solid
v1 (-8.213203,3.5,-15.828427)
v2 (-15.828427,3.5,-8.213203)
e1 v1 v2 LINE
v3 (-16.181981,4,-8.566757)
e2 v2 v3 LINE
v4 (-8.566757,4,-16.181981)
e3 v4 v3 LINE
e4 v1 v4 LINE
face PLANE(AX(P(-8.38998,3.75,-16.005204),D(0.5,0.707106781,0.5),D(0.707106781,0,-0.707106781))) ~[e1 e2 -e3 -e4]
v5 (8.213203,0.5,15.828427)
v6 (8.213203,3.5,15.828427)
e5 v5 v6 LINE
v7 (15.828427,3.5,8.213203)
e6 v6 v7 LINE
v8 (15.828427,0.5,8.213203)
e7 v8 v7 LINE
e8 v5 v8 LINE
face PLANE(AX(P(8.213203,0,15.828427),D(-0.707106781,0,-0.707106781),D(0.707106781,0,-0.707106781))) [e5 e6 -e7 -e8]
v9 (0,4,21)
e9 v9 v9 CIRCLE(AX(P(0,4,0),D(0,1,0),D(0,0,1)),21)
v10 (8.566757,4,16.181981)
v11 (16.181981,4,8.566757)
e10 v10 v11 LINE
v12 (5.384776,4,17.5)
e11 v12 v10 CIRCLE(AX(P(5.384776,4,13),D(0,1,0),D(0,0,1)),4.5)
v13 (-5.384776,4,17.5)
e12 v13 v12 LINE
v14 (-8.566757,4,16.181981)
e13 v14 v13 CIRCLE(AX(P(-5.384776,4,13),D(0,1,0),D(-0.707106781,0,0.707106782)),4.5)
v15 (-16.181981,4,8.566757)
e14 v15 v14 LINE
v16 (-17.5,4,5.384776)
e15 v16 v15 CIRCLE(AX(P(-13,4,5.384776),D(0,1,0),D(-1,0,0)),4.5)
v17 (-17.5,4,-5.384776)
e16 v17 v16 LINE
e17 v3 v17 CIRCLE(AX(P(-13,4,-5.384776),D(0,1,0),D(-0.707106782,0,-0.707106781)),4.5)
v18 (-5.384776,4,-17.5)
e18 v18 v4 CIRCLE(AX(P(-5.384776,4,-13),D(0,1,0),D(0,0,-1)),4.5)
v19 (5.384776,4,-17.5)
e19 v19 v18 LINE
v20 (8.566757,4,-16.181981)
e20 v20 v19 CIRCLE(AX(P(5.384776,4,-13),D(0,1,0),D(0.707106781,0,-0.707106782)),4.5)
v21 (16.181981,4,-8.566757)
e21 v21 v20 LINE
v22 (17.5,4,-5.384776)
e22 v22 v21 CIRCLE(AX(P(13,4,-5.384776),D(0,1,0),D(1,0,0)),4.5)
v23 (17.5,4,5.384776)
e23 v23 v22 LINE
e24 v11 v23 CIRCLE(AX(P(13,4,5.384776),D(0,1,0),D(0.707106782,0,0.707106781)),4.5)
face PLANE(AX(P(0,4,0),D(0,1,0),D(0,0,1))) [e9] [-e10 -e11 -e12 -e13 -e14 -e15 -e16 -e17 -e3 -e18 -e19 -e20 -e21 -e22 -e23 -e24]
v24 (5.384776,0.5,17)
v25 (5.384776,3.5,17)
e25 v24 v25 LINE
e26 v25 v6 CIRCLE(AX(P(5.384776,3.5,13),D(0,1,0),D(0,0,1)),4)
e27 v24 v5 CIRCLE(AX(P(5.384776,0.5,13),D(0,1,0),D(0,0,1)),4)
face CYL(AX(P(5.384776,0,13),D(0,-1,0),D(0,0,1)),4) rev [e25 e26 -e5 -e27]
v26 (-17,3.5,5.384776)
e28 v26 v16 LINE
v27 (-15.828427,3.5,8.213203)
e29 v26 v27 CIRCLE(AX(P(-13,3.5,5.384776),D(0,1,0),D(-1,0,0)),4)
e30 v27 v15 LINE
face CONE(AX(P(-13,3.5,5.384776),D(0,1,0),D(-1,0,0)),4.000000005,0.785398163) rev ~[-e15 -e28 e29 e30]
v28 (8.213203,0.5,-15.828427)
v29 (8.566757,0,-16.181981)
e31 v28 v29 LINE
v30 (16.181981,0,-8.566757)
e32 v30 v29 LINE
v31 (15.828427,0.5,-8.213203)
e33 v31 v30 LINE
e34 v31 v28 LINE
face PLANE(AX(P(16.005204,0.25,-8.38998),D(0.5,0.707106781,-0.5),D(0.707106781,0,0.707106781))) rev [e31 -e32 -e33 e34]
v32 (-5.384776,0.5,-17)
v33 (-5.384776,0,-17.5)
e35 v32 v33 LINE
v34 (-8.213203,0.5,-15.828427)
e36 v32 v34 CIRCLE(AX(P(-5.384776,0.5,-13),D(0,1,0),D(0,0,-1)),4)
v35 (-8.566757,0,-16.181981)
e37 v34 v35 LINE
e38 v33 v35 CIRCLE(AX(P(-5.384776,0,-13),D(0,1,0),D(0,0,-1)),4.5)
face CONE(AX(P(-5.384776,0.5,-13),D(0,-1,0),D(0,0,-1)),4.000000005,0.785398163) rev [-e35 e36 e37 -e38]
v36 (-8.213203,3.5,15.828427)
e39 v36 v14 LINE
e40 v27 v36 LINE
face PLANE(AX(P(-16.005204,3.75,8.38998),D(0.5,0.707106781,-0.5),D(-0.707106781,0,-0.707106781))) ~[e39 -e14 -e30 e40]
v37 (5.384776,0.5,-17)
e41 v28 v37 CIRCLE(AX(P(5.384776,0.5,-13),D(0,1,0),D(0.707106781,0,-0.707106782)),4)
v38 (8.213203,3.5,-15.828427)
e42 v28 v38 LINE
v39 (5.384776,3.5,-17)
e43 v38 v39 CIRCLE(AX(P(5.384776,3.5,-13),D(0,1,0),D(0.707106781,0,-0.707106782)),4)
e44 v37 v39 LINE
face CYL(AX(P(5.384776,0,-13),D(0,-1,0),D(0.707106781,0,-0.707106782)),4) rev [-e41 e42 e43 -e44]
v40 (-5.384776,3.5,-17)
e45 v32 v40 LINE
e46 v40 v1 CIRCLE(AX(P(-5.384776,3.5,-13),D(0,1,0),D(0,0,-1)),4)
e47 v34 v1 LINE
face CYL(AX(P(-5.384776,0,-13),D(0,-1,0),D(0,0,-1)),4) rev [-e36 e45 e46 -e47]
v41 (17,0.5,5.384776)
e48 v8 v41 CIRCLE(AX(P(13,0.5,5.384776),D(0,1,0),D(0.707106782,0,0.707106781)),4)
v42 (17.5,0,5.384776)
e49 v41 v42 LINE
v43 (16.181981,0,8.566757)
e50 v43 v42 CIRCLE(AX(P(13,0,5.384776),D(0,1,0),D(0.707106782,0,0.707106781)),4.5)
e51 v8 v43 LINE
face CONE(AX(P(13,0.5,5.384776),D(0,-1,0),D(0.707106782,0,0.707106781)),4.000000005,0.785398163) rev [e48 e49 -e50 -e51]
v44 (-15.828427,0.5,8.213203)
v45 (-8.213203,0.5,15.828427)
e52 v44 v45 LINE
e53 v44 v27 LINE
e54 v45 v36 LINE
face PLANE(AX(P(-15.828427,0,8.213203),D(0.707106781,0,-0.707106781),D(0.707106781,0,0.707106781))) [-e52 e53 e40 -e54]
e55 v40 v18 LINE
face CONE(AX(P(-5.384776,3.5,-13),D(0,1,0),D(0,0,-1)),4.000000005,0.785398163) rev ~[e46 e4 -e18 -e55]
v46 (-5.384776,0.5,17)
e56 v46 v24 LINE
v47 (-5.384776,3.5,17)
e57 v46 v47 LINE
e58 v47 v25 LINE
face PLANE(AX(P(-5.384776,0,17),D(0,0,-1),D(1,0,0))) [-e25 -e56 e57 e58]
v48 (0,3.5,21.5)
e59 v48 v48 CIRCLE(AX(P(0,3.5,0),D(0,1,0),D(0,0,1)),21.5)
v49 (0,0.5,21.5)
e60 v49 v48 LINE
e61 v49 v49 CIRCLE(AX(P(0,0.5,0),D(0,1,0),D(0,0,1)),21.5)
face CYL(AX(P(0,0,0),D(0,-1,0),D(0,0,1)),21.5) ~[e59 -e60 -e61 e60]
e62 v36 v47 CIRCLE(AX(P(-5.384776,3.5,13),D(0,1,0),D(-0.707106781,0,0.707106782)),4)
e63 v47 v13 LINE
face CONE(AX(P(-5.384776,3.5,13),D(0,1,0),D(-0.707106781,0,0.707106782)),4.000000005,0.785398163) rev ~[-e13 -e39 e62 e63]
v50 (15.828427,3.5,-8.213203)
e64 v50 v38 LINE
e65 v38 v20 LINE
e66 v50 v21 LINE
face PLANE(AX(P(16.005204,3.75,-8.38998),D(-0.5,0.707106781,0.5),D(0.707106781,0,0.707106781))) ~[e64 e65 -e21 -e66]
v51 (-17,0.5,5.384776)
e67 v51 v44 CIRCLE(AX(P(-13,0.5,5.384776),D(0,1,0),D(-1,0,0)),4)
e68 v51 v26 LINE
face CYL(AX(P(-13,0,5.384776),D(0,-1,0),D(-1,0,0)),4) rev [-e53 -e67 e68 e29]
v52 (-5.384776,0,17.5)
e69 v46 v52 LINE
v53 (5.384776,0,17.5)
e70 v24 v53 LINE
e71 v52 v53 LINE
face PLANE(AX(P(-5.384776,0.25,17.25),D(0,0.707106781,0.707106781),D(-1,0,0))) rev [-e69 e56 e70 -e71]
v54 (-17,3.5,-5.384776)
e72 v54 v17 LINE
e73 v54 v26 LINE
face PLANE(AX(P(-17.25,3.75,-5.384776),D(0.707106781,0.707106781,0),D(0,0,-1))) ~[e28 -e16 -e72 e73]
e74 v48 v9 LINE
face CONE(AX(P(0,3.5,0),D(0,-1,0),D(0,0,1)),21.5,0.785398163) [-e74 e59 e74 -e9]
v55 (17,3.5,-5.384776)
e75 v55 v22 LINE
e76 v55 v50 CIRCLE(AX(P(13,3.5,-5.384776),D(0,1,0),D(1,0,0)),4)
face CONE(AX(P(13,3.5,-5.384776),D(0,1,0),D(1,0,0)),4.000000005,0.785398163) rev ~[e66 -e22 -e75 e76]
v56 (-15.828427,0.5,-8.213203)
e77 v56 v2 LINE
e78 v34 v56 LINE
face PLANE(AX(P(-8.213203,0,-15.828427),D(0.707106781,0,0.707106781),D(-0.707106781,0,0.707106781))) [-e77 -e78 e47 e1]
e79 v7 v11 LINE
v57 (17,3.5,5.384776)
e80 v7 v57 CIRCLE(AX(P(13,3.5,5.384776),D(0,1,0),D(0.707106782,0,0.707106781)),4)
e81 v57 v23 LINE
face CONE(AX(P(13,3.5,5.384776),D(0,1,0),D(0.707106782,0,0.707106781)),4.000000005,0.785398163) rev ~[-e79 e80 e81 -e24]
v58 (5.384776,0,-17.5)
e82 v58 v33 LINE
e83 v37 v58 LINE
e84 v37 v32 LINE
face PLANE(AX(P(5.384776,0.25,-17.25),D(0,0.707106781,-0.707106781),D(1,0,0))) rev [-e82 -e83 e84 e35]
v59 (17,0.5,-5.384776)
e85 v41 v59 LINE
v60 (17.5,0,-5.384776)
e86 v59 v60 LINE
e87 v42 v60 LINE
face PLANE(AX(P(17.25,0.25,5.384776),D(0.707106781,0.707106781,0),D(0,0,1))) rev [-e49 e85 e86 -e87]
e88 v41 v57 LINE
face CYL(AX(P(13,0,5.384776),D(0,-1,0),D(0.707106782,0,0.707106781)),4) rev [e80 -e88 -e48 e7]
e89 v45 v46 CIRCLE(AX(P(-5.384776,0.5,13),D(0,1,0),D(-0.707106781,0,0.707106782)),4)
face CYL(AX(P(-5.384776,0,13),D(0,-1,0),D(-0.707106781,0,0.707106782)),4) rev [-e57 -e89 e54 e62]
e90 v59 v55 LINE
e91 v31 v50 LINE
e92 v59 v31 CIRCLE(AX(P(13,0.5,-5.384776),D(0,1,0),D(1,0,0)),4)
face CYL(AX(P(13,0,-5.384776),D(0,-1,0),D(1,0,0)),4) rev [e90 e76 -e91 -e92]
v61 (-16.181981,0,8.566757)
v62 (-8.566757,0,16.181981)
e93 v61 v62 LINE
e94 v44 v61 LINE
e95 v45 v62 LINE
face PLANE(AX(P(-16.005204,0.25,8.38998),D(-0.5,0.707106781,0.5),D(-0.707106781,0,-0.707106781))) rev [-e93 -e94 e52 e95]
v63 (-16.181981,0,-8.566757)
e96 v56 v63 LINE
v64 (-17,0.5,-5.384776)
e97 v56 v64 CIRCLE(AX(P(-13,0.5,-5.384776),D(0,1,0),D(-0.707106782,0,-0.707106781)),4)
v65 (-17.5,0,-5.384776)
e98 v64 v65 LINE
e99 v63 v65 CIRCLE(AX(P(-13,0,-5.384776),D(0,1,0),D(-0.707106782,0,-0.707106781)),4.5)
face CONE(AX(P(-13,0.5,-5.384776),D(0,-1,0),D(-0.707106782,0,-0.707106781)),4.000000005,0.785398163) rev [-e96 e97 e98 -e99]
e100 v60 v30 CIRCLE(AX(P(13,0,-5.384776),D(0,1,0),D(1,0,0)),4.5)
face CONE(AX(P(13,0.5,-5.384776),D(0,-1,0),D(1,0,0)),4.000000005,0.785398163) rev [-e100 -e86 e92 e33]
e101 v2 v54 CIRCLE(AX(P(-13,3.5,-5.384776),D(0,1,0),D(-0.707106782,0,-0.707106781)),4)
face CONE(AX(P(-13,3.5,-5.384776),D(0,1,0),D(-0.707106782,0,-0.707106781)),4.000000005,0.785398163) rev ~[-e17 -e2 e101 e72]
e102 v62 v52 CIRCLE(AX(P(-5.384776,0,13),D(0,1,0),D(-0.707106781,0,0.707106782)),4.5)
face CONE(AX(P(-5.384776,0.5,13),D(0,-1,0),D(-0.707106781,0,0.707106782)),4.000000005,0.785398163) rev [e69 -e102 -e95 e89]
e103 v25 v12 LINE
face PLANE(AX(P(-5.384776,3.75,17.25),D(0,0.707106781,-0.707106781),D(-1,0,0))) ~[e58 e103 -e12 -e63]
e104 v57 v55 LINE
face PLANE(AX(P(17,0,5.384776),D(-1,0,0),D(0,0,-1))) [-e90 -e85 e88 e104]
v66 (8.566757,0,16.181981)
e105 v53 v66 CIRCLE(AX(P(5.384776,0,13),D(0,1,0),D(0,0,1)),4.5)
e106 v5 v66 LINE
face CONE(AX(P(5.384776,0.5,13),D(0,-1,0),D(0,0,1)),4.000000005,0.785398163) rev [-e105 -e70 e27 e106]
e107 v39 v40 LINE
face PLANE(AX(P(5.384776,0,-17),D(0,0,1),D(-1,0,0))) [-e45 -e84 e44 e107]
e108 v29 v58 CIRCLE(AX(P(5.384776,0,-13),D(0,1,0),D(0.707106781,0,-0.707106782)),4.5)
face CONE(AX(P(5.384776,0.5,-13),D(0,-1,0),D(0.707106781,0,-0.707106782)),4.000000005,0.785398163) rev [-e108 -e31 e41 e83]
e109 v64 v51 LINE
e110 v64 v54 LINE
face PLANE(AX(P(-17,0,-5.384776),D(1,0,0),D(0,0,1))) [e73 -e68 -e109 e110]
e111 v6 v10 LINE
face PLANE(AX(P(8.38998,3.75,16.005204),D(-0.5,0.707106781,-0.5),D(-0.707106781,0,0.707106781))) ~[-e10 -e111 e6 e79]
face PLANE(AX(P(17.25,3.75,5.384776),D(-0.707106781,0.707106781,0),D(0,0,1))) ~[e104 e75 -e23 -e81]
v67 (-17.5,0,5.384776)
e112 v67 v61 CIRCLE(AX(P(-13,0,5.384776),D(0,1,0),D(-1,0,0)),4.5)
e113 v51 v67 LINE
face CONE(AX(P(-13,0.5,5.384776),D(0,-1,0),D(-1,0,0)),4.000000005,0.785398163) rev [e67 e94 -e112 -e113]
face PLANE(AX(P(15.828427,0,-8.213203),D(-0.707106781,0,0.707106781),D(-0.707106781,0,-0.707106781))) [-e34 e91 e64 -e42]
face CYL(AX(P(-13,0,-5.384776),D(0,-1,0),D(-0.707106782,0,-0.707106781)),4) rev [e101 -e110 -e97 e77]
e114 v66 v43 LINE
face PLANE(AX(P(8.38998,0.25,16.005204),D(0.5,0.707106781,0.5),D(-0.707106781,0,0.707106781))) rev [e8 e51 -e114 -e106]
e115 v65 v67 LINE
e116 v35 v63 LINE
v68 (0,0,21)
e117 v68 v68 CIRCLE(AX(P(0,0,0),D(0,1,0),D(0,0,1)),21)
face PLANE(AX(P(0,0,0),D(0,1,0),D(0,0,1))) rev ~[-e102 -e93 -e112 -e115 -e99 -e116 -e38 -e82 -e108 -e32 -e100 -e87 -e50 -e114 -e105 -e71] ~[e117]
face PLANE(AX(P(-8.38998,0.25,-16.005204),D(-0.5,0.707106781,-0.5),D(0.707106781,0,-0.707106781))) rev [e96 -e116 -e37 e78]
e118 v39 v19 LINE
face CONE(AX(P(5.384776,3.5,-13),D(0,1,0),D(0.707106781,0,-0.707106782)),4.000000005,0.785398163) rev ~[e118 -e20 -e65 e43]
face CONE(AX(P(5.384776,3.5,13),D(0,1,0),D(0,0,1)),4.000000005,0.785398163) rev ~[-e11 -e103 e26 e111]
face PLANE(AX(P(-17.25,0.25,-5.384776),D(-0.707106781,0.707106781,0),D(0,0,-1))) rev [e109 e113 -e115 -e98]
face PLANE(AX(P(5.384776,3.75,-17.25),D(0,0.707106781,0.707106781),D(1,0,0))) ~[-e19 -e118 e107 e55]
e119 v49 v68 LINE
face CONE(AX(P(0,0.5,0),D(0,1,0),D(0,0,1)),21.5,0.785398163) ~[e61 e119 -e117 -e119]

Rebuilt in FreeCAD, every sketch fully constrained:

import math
import FreeCAD as App
import Part
import Sketcher
from FreeCAD import Vector
Q = App.Units.Quantity


def edges_at(feature, points):
    """Names of the edges that pass closest to the given points."""
    edges = feature.Shape.Edges
    near = lambda p: min(range(len(edges)), key=lambda i: edges[i].distToShape(Part.Vertex(*p))[0])
    return sorted({f"Edge{near(p) + 1}" for p in points})

doc = App.newDocument("Part")
body = doc.addObject("PartDesign::Body", "Body")

sketch1 = body.newObject("Sketcher::SketchObject", "Sketch")
sketch1.AttachmentSupport = (doc.getObject("XZ_Plane"), [""])
sketch1.MapMode = "FlatFace"
sketch1.addGeometry(Part.Circle(Vector(0, 0, 0), Vector(0, 0, 1), 21.5), False)
sketch1.addGeometry(Part.LineSegment(Vector(-5.4, -17, 0), Vector(5.4, -17, 0)), False)
sketch1.addGeometry(Part.ArcOfCircle(Part.Circle(Vector(5.4, -13, 0), Vector(0, 0, 1), 4), math.radians(-90), math.radians(-45)), False)
sketch1.addGeometry(Part.LineSegment(Vector(8.2, -15.8, 0), Vector(15.8, -8.2, 0)), False)
sketch1.addGeometry(Part.ArcOfCircle(Part.Circle(Vector(13, -5.4, 0), Vector(0, 0, 1), 4), math.radians(-45), math.radians(0)), False)
sketch1.addGeometry(Part.LineSegment(Vector(17, -5.4, 0), Vector(17, 5.4, 0)), False)
sketch1.addGeometry(Part.ArcOfCircle(Part.Circle(Vector(13, 5.4, 0), Vector(0, 0, 1), 4), math.radians(0), math.radians(45)), False)
sketch1.addGeometry(Part.LineSegment(Vector(15.8, 8.2, 0), Vector(8.2, 15.8, 0)), False)
sketch1.addGeometry(Part.ArcOfCircle(Part.Circle(Vector(5.4, 13, 0), Vector(0, 0, 1), 4), math.radians(45), math.radians(90)), False)
sketch1.addGeometry(Part.LineSegment(Vector(5.4, 17, 0), Vector(-5.4, 17, 0)), False)
sketch1.addGeometry(Part.ArcOfCircle(Part.Circle(Vector(-5.4, 13, 0), Vector(0, 0, 1), 4), math.radians(90), math.radians(135)), False)
sketch1.addGeometry(Part.LineSegment(Vector(-8.2, 15.8, 0), Vector(-15.8, 8.2, 0)), False)
sketch1.addGeometry(Part.ArcOfCircle(Part.Circle(Vector(-13, 5.4, 0), Vector(0, 0, 1), 4), math.radians(135), math.radians(180)), False)
sketch1.addGeometry(Part.LineSegment(Vector(-17, 5.4, 0), Vector(-17, -5.4, 0)), False)
sketch1.addGeometry(Part.ArcOfCircle(Part.Circle(Vector(-13, -5.4, 0), Vector(0, 0, 1), 4), math.radians(-180), math.radians(-135)), False)
sketch1.addGeometry(Part.LineSegment(Vector(-15.8, -8.2, 0), Vector(-8.2, -15.8, 0)), False)
sketch1.addGeometry(Part.ArcOfCircle(Part.Circle(Vector(-5.4, -13, 0), Vector(0, 0, 1), 4), math.radians(-135), math.radians(-90)), False)
sketch1.addConstraint(Sketcher.Constraint("Tangent", 1, 2, 2, 1))
sketch1.addConstraint(Sketcher.Constraint("Tangent", 2, 2, 3, 1))
sketch1.addConstraint(Sketcher.Constraint("Tangent", 3, 2, 4, 1))
sketch1.addConstraint(Sketcher.Constraint("Tangent", 4, 2, 5, 1))
sketch1.addConstraint(Sketcher.Constraint("Tangent", 5, 2, 6, 1))
sketch1.addConstraint(Sketcher.Constraint("Tangent", 6, 2, 7, 1))
sketch1.addConstraint(Sketcher.Constraint("Tangent", 7, 2, 8, 1))
sketch1.addConstraint(Sketcher.Constraint("Tangent", 8, 2, 9, 1))
sketch1.addConstraint(Sketcher.Constraint("Tangent", 9, 2, 10, 1))
sketch1.addConstraint(Sketcher.Constraint("Tangent", 10, 2, 11, 1))
sketch1.addConstraint(Sketcher.Constraint("Tangent", 11, 2, 12, 1))
sketch1.addConstraint(Sketcher.Constraint("Tangent", 12, 2, 13, 1))
sketch1.addConstraint(Sketcher.Constraint("Tangent", 13, 2, 14, 1))
sketch1.addConstraint(Sketcher.Constraint("Tangent", 14, 2, 15, 1))
sketch1.addConstraint(Sketcher.Constraint("Tangent", 15, 2, 16, 1))
sketch1.addConstraint(Sketcher.Constraint("Tangent", 16, 2, 1, 1))
sketch1.addConstraint(Sketcher.Constraint("Horizontal", 1))
sketch1.addConstraint(Sketcher.Constraint("Vertical", 5))
sketch1.addConstraint(Sketcher.Constraint("Horizontal", 9))
sketch1.addConstraint(Sketcher.Constraint("Vertical", 13))
sketch1.addConstraint(Sketcher.Constraint("Coincident", 0, 3, -1, 1))
sketch1.addConstraint(Sketcher.Constraint("Equal", 2, 4))
sketch1.addConstraint(Sketcher.Constraint("Equal", 4, 6))
sketch1.addConstraint(Sketcher.Constraint("Equal", 6, 8))
sketch1.addConstraint(Sketcher.Constraint("Equal", 8, 10))
sketch1.addConstraint(Sketcher.Constraint("Equal", 10, 12))
sketch1.addConstraint(Sketcher.Constraint("Equal", 12, 14))
sketch1.addConstraint(Sketcher.Constraint("Equal", 14, 16))
sketch1.addConstraint(Sketcher.Constraint("Symmetric", 2, 3, 10, 3, -1, 1))
sketch1.addConstraint(Sketcher.Constraint("Symmetric", 4, 3, 12, 3, -1, 1))
sketch1.addConstraint(Sketcher.Constraint("Symmetric", 6, 2, 14, 2, -1, 1))
sketch1.addConstraint(Sketcher.Constraint("Symmetric", 7, 2, 10, 2, -2))
sketch1.addConstraint(Sketcher.Constraint("Perpendicular", 3, 7))
sketch1.addConstraint(Sketcher.Constraint("Equal", 9, 5))
sketch1.addConstraint(Sketcher.Constraint("Diameter", 0, Q("43 mm")))
sketch1.addConstraint(Sketcher.Constraint("Radius", 2, Q("4 mm")))
sketch1.addConstraint(Sketcher.Constraint("DistanceY", 2, 3, -1, 1, Q("13 mm")))
sketch1.addConstraint(Sketcher.Constraint("DistanceX", 1, 1, 1, 2, Q("10.769553 mm")))
pad1 = body.newObject("PartDesign::Pad", "Pad")
pad1.Profile = sketch1
pad1.Length = 4
pad1.Reversed = True
doc.recompute()

chamfer = body.newObject("PartDesign::Chamfer", "Chamfer")
chamfer.Base = (pad1, edges_at(pad1, [
    (-6.916, 0, -16.696),
    (-12.021, 0, -12.021),
    (0, 0, -21.5),
    (-16.696, 0, -6.916),
    (-17, 0, 0),
    (-16.696, 0, 6.916),
    (-12.021, 0, 12.021),
    (-6.916, 0, 16.696),
    (0, 0, 17),
    (6.916, 0, 16.696),
    (12.021, 0, 12.021),
    (16.696, 0, 6.916),
    (17, 0, 0),
    (16.696, 0, -6.916),
    (12.021, 0, -12.021),
    (6.916, 0, -16.696),
    (0, 0, -17),
    (-6.916, 4, -16.696),
    (-12.021, 4, -12.021),
    (-16.696, 4, -6.916),
    (-17, 4, 0),
    (-16.696, 4, 6.916),
    (-12.021, 4, 12.021),
    (-6.916, 4, 16.696),
    (0, 4, 17),
    (6.916, 4, 16.696),
    (12.021, 4, 12.021),
    (16.696, 4, 6.916),
    (17, 4, 0),
    (16.696, 4, -6.916),
    (12.021, 4, -12.021),
    (6.916, 4, -16.696),
    (0, 4, -17),
    (0, 4, -21.5),
]))
chamfer.Size = 0.5

doc.recompute()
